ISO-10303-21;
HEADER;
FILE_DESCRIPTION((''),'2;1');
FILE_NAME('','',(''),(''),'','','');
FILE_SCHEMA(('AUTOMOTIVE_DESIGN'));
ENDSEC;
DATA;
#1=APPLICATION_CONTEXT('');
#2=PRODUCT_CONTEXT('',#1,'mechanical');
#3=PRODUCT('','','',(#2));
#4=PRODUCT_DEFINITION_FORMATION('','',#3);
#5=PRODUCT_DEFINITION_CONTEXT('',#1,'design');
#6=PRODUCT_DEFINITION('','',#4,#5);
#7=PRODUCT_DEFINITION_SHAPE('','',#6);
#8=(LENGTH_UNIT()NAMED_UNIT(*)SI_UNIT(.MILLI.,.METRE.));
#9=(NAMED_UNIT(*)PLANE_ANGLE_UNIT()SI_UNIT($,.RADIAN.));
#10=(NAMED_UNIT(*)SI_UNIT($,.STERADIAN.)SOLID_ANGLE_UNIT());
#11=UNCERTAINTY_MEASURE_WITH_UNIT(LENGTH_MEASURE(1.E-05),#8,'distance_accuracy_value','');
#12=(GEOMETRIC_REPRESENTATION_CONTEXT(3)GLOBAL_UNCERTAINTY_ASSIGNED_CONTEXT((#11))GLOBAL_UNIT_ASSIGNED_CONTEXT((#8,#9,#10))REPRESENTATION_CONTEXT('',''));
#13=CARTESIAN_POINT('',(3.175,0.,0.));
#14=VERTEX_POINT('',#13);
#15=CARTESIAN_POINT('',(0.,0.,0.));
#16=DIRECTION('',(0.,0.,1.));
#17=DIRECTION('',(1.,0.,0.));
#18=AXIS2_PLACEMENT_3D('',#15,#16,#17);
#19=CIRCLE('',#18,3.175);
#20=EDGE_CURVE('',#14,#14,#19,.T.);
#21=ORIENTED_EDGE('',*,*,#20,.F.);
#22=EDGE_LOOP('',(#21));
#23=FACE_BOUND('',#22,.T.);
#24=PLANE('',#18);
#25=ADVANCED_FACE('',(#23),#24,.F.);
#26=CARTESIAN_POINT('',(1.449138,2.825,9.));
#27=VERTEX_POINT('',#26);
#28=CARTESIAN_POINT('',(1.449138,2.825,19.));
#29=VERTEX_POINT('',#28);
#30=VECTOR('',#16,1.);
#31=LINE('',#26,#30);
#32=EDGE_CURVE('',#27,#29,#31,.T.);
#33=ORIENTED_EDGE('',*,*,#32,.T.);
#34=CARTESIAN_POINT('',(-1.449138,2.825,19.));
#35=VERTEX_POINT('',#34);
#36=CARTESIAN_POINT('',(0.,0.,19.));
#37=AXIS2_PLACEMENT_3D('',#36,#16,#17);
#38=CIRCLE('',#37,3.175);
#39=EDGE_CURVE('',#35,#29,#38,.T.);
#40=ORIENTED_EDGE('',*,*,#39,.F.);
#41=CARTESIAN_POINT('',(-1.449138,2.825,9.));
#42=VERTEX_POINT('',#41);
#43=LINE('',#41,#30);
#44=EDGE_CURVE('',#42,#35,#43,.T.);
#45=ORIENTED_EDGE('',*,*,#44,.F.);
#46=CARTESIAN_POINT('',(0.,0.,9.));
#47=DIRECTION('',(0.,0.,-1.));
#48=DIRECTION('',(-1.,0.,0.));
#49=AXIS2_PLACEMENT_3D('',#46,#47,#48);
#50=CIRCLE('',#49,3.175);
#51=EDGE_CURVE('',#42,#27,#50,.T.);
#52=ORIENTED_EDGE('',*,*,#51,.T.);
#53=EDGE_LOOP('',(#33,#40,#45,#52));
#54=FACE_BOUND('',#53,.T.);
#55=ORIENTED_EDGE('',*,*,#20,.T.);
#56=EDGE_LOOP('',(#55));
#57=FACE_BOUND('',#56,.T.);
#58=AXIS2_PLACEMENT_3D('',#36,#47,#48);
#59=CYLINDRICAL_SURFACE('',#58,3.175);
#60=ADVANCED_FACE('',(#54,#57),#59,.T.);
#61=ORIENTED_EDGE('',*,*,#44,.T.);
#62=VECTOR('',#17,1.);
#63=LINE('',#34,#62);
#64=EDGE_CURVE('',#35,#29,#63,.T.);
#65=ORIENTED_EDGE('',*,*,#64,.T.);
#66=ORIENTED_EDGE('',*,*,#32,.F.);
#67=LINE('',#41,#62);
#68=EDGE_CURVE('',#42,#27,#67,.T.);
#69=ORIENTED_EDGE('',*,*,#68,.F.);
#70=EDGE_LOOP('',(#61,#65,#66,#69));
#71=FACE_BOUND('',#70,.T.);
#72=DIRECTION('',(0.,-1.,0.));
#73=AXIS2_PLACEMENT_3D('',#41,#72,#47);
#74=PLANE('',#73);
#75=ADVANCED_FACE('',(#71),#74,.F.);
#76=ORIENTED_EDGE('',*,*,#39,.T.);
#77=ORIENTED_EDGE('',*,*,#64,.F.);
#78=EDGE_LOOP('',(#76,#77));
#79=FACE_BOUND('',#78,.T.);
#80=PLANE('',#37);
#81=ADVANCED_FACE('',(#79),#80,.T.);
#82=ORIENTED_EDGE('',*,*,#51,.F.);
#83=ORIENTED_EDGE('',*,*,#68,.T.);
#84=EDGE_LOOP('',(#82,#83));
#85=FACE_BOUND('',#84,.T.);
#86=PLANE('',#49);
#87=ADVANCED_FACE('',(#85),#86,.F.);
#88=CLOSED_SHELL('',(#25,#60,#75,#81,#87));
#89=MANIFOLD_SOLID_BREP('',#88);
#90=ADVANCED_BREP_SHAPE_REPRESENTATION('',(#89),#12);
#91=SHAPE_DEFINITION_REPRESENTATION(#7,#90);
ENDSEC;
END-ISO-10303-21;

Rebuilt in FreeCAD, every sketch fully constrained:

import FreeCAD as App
import Part
import Sketcher

V = App.Vector


def add_polygon(sketch, points):
    """Adds a closed chain of lines whose ends are joined by coincident constraints."""
    first, n = sketch.GeometryCount, len(points)
    for a, b in zip(points, points[1:] + points[:1]):
        sketch.addGeometry(Part.LineSegment(App.Vector(*a, 0), App.Vector(*b, 0)), False)
    for i in range(n):
        sketch.addConstraint(Sketcher.Constraint("Coincident", first + i, 2, first + (i + 1) % n, 1))

doc = App.newDocument("Part")
body = doc.addObject("PartDesign::Body", "Body")

# Sketch on XY plane
sketch1 = body.newObject("Sketcher::SketchObject", "Sketch")
sketch1.AttachmentSupport = (doc.getObject("XY_Plane"), [""])
sketch1.MapMode = "FlatFace"
sketch1.addGeometry(Part.Circle(V(0, 0, 0), V(0, 0, 1), 3.2), False)
sketch1.addConstraint([
    Sketcher.Constraint("Coincident", 0, 3, -1, 1),
    Sketcher.Constraint("Diameter", 0, 6.35),
])
pad1 = body.newObject("PartDesign::Pad", "Pad")
pad1.Profile = sketch1
pad1.Length = 19

# Sketch on XY plane
sketch2 = body.newObject("Sketcher::SketchObject", "Sketch001")
sketch2.AttachmentSupport = (doc.getObject("XY_Plane"), [""])
sketch2.MapMode = "FlatFace"
sketch2.AttachmentOffset = App.Placement(V(0, 0, 19), App.Rotation())
add_polygon(sketch2, [(-1.45, 3.17), (-1.45, 2.83), (1.45, 2.83), (1.45, 3.17)])  # lines 0-3
sketch2.addConstraint([
    Sketcher.Constraint("Vertical", 0),
    Sketcher.Constraint("Horizontal", 1),
    Sketcher.Constraint("Vertical", 2),
    Sketcher.Constraint("Horizontal", 3),
    Sketcher.Constraint("DistanceY", 0, 2, 0, 1, 0.35),
    Sketcher.Constraint("DistanceY", -1, 1, 0, 2, 2.825),
    Sketcher.Constraint("DistanceX", 1, 1, 1, 2, 2.898275),
    Sketcher.Constraint("DistanceX", 0, 2, -1, 1, 1.449138),
])
pocket1 = body.newObject("PartDesign::Pocket", "Pocket")
pocket1.Profile = sketch2
pocket1.Length = 10

doc.recompute()
